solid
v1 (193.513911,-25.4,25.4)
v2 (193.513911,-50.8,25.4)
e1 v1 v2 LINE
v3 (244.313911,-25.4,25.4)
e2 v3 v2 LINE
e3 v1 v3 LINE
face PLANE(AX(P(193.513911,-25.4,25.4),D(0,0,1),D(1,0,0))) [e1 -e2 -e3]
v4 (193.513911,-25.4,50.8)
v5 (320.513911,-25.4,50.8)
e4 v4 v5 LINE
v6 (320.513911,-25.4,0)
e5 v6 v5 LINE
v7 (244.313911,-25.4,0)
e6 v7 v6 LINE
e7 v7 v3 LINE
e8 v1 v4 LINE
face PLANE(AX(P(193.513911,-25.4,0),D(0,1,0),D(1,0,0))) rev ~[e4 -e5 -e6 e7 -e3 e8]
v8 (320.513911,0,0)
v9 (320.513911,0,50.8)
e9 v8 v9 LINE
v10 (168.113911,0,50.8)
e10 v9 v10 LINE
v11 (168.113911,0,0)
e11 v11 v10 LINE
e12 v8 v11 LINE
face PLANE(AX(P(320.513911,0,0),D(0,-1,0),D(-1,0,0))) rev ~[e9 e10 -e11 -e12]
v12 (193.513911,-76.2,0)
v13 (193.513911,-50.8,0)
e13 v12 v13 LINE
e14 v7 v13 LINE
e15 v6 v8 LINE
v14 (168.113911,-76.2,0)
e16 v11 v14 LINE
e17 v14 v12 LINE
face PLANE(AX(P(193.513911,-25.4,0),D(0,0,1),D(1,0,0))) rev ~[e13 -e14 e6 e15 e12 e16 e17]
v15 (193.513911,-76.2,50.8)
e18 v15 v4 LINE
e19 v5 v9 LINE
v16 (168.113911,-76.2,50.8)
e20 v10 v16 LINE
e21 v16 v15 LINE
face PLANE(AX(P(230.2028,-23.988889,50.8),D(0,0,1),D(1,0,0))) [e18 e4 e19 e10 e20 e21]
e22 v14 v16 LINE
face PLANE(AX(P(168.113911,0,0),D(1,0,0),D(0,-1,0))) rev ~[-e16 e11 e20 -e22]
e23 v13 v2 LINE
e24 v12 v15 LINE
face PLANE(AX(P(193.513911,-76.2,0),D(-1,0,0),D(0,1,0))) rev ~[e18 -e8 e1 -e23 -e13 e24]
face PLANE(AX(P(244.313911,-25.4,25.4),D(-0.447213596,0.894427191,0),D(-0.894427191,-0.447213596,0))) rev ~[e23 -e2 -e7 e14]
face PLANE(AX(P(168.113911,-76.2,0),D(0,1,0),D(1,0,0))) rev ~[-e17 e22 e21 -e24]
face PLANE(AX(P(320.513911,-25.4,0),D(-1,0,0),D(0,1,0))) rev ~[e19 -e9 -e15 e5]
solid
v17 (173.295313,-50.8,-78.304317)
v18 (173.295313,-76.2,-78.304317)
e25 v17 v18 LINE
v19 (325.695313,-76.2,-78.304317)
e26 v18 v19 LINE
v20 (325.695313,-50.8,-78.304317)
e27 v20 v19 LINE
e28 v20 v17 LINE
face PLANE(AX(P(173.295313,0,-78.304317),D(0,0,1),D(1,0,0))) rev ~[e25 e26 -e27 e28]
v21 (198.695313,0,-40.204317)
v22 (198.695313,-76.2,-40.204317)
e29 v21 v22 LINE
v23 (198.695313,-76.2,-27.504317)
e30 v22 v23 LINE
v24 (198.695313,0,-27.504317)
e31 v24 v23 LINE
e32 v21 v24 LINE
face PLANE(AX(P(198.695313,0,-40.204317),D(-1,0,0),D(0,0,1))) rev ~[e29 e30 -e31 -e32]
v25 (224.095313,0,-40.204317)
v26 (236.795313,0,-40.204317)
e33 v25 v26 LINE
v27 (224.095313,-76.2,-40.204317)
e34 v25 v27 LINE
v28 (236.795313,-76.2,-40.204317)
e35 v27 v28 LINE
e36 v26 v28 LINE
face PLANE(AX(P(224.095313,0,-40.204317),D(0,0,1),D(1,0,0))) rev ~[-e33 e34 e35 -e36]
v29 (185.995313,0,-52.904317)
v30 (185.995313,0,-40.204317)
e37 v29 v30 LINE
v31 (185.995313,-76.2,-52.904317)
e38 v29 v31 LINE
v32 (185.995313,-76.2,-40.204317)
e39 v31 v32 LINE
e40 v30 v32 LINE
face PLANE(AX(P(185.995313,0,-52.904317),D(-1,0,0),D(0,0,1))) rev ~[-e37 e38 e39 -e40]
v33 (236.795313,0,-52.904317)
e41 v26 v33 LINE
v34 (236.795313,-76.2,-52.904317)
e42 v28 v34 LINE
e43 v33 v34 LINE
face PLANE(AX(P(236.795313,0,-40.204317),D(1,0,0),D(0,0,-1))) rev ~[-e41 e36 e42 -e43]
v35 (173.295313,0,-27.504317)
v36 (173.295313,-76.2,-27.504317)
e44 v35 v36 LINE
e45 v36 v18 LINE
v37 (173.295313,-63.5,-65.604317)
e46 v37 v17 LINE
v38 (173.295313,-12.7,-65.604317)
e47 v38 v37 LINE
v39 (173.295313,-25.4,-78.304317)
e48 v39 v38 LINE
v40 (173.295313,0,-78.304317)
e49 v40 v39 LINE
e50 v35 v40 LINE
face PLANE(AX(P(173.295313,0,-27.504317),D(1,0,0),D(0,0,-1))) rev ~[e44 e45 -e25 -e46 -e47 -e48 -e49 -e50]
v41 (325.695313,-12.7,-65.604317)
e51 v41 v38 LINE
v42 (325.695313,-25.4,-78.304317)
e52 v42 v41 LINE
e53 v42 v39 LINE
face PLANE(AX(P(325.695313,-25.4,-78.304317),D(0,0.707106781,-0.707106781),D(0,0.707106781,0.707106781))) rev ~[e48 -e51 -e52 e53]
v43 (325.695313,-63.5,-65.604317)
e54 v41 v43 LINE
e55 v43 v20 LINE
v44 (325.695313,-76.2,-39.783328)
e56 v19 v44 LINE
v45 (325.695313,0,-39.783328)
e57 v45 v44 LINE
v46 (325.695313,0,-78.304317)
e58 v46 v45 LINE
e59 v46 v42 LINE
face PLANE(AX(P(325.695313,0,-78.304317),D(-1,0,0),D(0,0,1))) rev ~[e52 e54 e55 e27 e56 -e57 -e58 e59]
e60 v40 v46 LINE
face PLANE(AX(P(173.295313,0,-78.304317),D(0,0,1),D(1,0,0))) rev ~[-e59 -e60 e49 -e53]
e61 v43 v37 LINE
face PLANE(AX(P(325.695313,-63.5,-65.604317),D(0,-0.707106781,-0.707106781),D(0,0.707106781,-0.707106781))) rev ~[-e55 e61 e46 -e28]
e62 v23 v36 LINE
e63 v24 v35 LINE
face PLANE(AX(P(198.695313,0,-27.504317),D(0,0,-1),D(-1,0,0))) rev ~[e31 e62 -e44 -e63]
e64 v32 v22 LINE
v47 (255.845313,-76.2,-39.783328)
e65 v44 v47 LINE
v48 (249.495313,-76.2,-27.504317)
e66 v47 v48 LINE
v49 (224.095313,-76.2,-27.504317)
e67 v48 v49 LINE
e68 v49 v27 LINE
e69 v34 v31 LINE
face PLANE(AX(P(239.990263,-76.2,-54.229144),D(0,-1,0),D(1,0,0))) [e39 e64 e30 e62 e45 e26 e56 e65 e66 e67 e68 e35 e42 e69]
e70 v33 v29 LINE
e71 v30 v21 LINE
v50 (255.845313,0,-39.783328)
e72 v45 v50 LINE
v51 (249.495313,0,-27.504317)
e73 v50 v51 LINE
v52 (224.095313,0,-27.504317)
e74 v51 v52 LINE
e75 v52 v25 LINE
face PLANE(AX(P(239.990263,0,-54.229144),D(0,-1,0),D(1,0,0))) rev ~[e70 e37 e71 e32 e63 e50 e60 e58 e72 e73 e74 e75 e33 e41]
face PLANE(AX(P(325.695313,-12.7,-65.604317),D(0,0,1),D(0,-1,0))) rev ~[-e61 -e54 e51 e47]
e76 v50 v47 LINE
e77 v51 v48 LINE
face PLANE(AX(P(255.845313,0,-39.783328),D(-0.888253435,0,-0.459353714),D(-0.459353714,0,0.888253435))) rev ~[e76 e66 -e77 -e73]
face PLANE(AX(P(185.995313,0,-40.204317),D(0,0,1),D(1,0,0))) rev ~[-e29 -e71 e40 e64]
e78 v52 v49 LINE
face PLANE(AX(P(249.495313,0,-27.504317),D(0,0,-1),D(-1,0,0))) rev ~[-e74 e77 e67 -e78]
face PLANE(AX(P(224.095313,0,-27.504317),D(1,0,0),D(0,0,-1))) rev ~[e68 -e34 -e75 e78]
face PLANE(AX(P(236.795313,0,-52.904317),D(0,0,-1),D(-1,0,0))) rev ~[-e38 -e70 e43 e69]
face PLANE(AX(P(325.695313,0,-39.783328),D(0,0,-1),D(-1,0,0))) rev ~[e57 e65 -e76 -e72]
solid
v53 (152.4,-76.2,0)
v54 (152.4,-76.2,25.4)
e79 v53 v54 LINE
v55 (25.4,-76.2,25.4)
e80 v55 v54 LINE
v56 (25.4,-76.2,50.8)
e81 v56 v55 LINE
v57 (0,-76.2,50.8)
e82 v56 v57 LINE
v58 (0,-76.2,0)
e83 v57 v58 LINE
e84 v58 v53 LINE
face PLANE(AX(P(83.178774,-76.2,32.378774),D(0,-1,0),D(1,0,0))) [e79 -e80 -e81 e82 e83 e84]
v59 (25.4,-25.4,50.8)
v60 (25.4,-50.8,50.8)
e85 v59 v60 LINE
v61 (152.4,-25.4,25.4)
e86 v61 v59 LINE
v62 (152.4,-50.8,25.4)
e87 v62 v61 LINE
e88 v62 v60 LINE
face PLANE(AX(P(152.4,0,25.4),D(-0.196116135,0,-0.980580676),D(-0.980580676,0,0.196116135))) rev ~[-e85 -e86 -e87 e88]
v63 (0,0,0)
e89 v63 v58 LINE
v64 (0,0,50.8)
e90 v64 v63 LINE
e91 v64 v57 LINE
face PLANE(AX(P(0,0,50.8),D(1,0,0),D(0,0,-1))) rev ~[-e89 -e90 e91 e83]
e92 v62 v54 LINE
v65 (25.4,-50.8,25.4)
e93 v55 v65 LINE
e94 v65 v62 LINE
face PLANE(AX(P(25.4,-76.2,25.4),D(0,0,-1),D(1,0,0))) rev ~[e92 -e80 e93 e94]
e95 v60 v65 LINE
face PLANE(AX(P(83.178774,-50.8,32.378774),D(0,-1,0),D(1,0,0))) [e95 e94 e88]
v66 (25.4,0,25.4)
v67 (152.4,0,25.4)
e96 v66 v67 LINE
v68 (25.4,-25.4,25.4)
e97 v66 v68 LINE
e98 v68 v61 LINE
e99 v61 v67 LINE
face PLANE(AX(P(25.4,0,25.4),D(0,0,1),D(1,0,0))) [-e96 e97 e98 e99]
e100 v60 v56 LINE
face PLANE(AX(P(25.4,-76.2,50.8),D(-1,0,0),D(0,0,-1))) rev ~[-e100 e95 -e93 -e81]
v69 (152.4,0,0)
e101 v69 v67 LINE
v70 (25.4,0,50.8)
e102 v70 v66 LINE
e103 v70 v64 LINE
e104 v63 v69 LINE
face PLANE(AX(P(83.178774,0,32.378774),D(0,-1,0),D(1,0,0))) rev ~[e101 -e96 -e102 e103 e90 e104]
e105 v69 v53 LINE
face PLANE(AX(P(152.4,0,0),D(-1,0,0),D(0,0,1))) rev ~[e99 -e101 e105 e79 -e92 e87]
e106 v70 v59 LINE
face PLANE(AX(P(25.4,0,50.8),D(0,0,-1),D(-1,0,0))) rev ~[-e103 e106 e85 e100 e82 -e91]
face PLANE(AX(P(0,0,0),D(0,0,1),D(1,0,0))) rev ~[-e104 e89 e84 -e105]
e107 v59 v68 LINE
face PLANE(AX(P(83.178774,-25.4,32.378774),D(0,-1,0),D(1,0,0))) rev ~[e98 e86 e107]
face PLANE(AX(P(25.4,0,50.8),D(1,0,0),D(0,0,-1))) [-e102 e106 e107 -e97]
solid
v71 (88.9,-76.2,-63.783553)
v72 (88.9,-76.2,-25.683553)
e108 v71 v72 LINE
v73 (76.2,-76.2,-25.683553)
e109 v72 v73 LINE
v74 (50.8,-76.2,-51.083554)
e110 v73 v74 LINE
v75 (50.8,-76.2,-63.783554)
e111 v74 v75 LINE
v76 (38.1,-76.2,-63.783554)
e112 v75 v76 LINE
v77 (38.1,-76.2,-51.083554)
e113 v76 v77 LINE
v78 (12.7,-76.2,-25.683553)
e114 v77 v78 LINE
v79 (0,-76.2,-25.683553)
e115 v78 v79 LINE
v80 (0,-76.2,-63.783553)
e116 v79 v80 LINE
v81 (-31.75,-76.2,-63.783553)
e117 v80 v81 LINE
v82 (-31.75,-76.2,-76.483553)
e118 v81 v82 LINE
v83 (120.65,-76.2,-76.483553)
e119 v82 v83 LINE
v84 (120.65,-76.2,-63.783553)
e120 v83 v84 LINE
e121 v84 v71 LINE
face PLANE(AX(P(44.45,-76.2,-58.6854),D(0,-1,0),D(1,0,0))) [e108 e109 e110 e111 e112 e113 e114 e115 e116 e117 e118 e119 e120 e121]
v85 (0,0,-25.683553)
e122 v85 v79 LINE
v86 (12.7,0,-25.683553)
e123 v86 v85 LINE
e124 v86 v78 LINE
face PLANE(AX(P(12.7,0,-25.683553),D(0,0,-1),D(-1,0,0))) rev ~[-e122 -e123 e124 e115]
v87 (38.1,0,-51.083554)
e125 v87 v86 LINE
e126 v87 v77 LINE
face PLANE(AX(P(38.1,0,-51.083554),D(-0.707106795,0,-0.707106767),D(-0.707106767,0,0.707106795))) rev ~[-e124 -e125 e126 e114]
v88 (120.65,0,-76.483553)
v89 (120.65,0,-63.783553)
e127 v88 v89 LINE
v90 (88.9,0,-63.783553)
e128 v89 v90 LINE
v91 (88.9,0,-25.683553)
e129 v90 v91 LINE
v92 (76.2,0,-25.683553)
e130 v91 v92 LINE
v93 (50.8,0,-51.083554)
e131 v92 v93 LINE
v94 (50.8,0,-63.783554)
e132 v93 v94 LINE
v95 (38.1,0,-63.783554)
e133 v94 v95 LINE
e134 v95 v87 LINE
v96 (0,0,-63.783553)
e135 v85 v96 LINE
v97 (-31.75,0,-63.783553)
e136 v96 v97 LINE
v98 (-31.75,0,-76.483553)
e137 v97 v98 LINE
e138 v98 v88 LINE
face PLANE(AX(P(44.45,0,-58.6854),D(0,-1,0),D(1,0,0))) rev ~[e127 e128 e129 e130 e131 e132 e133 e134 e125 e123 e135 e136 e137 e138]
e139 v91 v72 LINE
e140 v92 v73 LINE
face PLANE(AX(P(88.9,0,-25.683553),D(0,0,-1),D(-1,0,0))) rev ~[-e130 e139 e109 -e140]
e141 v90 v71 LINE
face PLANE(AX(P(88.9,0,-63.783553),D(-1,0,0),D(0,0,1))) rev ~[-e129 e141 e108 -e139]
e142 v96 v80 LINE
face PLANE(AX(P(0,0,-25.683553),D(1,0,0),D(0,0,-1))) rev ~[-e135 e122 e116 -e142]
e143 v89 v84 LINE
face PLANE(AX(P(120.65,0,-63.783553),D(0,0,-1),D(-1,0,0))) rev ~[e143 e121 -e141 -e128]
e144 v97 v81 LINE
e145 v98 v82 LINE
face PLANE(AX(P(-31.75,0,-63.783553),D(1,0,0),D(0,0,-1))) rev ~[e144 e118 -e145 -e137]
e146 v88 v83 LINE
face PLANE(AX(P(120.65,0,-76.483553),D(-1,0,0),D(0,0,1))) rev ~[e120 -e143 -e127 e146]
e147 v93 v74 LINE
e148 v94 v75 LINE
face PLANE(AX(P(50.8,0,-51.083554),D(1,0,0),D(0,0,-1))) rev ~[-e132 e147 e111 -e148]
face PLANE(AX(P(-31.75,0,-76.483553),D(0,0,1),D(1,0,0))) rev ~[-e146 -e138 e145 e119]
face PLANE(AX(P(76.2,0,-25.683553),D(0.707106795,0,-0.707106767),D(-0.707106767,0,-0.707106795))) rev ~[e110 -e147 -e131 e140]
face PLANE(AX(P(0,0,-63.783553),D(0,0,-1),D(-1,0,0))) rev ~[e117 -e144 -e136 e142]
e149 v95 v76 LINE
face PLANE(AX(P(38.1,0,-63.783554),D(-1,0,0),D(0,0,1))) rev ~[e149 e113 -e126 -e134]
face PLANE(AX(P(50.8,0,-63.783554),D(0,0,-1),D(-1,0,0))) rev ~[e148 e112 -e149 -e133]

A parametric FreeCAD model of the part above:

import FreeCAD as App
import Part
import Sketcher
from FreeCAD import Vector
Q = App.Units.Quantity


def add_polygon(sketch, points):
    """Adds a closed chain of lines whose ends are joined by coincident constraints."""
    first, n = sketch.GeometryCount, len(points)
    for a, b in zip(points, points[1:] + points[:1]):
        sketch.addGeometry(Part.LineSegment(App.Vector(*a, 0), App.Vector(*b, 0)), False)
    for i in range(n):
        sketch.addConstraint(Sketcher.Constraint("Coincident", first + i, 2, first + (i + 1) % n, 1))

doc = App.newDocument("Part")
body = doc.addObject("PartDesign::Body", "Body")

# Sketch on XZ plane
sketch1 = doc.addObject("Sketcher::SketchObject", "Sketch")
body.addObject(sketch1)
sketch1.AttachmentSupport = (doc.XZ_Plane, [""])
sketch1.MapMode = "FlatFace"
add_polygon(sketch1, [(0, 51), (0, 0), (152, 0), (152, 25), (25, 25), (25, 51)])  # lines 0-5
sketch1.addConstraint([
    Sketcher.Constraint("Vertical", 0),
    Sketcher.Constraint("Horizontal", 1),
    Sketcher.Constraint("Vertical", 2),
    Sketcher.Constraint("Horizontal", 3),
    Sketcher.Constraint("Vertical", 4),
    Sketcher.Constraint("Horizontal", 5),
    Sketcher.Constraint("Coincident", 0, 2, -1, 1),
    Sketcher.Constraint("Equal", 5, 2),
    Sketcher.Constraint("Equal", 2, 4),
    Sketcher.Constraint("DistanceX", 1, 1, 1, 2, Q("6 in")),
    Sketcher.Constraint("DistanceX", 3, 2, 3, 1, Q("5 in")),
])
pad1 = doc.addObject("PartDesign::Pad", "Pad")
body.addObject(pad1)
pad1.Profile = sketch1
pad1.Length = Q("3 in")

# Sketch on XZ plane
sketch2 = doc.addObject("Sketcher::SketchObject", "Sketch001")
body.addObject(sketch2)
sketch2.AttachmentSupport = (doc.XZ_Plane, [""])
sketch2.MapMode = "FlatFace"
add_polygon(sketch2, [(25, 25), (152, 25), (25, 51)])  # lines 0-2
sketch2.addConstraint([
    Sketcher.Constraint("Horizontal", 0),
    Sketcher.Constraint("Vertical", 2),
    Sketcher.Constraint("DistanceX", 0, 1, 0, 2, Q("5 in")),
    Sketcher.Constraint("DistanceY", 2, 2, 2, 1, Q("1 in")),
    Sketcher.Constraint("DistanceX", -1, 1, 0, 2, Q("6 in")),
    Sketcher.Constraint("DistanceY", -1, 1, 0, 2, Q("1 in")),
])
pad2 = doc.addObject("PartDesign::Pad", "Pad001")
body.addObject(pad2)
pad2.Profile = sketch2
pad2.Length = Q("3 in")

# Sketch on XZ plane
sketch3 = doc.addObject("Sketcher::SketchObject", "Sketch002")
body.addObject(sketch3)
sketch3.AttachmentSupport = (doc.XZ_Plane, [""])
sketch3.MapMode = "FlatFace"
sketch3.AttachmentOffset = App.Placement(Vector(0, 0, 3 * 25.4), App.Rotation())
add_polygon(sketch3, [(152, 25), (25, 51), (25, 25)])  # lines 0-2
sketch3.addConstraint([
    Sketcher.Constraint("Vertical", 1),
    Sketcher.Constraint("Horizontal", 2),
    Sketcher.Constraint("DistanceX", 2, 1, 2, 2, Q("5 in")),
    Sketcher.Constraint("DistanceY", 1, 2, 1, 1, Q("1 in")),
    Sketcher.Constraint("DistanceX", -1, 1, 0, 2, Q("1 in")),
    Sketcher.Constraint("DistanceY", -1, 1, 0, 2, Q("2 in")),
])
pocket1 = doc.addObject("PartDesign::Pocket", "Pocket")
body.addObject(pocket1)
pocket1.Profile = sketch3
pocket1.Length = Q("1 in")

# Sketch on XZ plane
sketch4 = doc.addObject("Sketcher::SketchObject", "Sketch003")
body.addObject(sketch4)
sketch4.AttachmentSupport = (doc.XZ_Plane, [""])
sketch4.MapMode = "FlatFace"
add_polygon(sketch4, [(25, 25), (152, 25), (25, 51)])  # lines 0-2
sketch4.addConstraint([
    Sketcher.Constraint("Horizontal", 0),
    Sketcher.Constraint("Vertical", 2),
    Sketcher.Constraint("DistanceX", 0, 1, 0, 2, Q("5 in")),
    Sketcher.Constraint("DistanceY", 2, 2, 2, 1, Q("1 in")),
    Sketcher.Constraint("DistanceX", -1, 1, 0, 2, Q("6 in")),
    Sketcher.Constraint("DistanceY", -1, 1, 0, 2, Q("1 in")),
])
pad3 = doc.addObject("PartDesign::Pad", "Pad002")
body.addObject(pad3)
pad3.Profile = sketch4
pad3.Length = Q("1 in")

# Sketch on XZ plane
sketch5 = doc.addObject("Sketcher::SketchObject", "Sketch004")
body.addObject(sketch5)
sketch5.AttachmentSupport = (doc.XZ_Plane, [""])
sketch5.MapMode = "FlatFace"
add_polygon(sketch5, [(25, 25), (152, 25), (25, 51)])  # lines 0-2
sketch5.addConstraint([
    Sketcher.Constraint("Horizontal", 0),
    Sketcher.Constraint("Vertical", 2),
    Sketcher.Constraint("DistanceX", 0, 1, 0, 2, Q("5 in")),
    Sketcher.Constraint("DistanceY", 2, 2, 2, 1, Q("1 in")),
    Sketcher.Constraint("DistanceX", -1, 1, 0, 2, Q("6 in")),
    Sketcher.Constraint("DistanceY", -1, 1, 0, 2, Q("1 in")),
])
pocket2 = doc.addObject("PartDesign::Pocket", "Pocket001")
body.addObject(pocket2)
pocket2.Profile = sketch5
pocket2.Length = Q("1 in")
pocket2.Reversed = True
body2 = doc.addObject("PartDesign::Body", "Body001")

# Sketch on XY plane
sketch6 = doc.addObject("Sketcher::SketchObject", "Sketch005")
body2.addObject(sketch6)
sketch6.AttachmentSupport = (doc.getObject("XY_Plane001"), [""])
sketch6.MapMode = "FlatFace"
add_polygon(sketch6, [(321, 0), (168, 0), (168, -76), (194, -76), (194, -25), (321, -25)])  # lines 0-5
sketch6.addConstraint([
    Sketcher.Constraint("Horizontal", 0),
    Sketcher.Constraint("Vertical", 1),
    Sketcher.Constraint("Horizontal", 2),
    Sketcher.Constraint("Vertical", 3),
    Sketcher.Constraint("Horizontal", 4),
    Sketcher.Constraint("Vertical", 5),
    Sketcher.Constraint("PointOnObject", 0, 2, -1),
    Sketcher.Constraint("Equal", 2, 5),
    Sketcher.Constraint("DistanceX", 0, 2, 0, 1, Q("6 in")),
    Sketcher.Constraint("DistanceX", 2, 1, 2, 2, Q("1 in")),
    Sketcher.Constraint("DistanceY", 1, 2, 1, 1, Q("3 in")),
    Sketcher.Constraint("DistanceX", -1, 1, 0, 2, Q("168.113911 mm")),
])
pad4 = doc.addObject("PartDesign::Pad", "Pad003")
body2.addObject(pad4)
pad4.Profile = sketch6
pad4.Length = Q("2 in")

# Sketch on XZ plane
sketch7 = doc.addObject("Sketcher::SketchObject", "Sketch006")
body2.addObject(sketch7)
sketch7.AttachmentSupport = (doc.getObject("XZ_Plane001"), [""])
sketch7.MapMode = "FlatFace"
sketch7.AttachmentOffset = App.Placement(Vector(0, 0, 1 * 25.4), App.Rotation())
add_polygon(sketch7, [(194, 25), (194, 0), (244, 0), (244, 25)])  # lines 0-3
sketch7.addConstraint([
    Sketcher.Constraint("Vertical", 0),
    Sketcher.Constraint("Horizontal", 1),
    Sketcher.Constraint("Vertical", 2),
    Sketcher.Constraint("Horizontal", 3),
    Sketcher.Constraint("PointOnObject", 0, 2, -1),
    Sketcher.Constraint("DistanceX", 1, 1, 1, 2, Q("2 in")),
    Sketcher.Constraint("DistanceY", 0, 2, 0, 1, Q("1 in")),
    Sketcher.Constraint("DistanceX", -1, 1, 0, 2, Q("193.513911 mm")),
])
pad5 = doc.addObject("PartDesign::Pad", "Pad004")
body2.addObject(pad5)
pad5.Profile = sketch7
pad5.Length = Q("1 in")

# Sketch on XY plane
sketch8 = doc.addObject("Sketcher::SketchObject", "Sketch007")
body2.addObject(sketch8)
sketch8.AttachmentSupport = (doc.getObject("XY_Plane001"), [""])
sketch8.MapMode = "FlatFace"
sketch8.AttachmentOffset = App.Placement(Vector(0, 0, 1 * 25.4), App.Rotation())
add_polygon(sketch8, [(244, -25), (194, -51), (244, -51)])  # lines 0-2
sketch8.addConstraint([
    Sketcher.Constraint("Horizontal", 1),
    Sketcher.Constraint("Vertical", 2),
    Sketcher.Constraint("DistanceX", 1, 1, 1, 2, Q("2 in")),
    Sketcher.Constraint("DistanceY", 2, 1, 2, 2, Q("1 in")),
    Sketcher.Constraint("DistanceY", 0, 2, -1, 1, Q("2 in")),
    Sketcher.Constraint("DistanceX", -1, 1, 0, 2, Q("193.513911 mm")),
])
pocket3 = doc.addObject("PartDesign::Pocket", "Pocket002")
body2.addObject(pocket3)
pocket3.Profile = sketch8
pocket3.Length = Q("1 in")
body3 = doc.addObject("PartDesign::Body", "Body002")

# Sketch on XZ plane
sketch9 = doc.addObject("Sketcher::SketchObject", "Sketch008")
body3.addObject(sketch9)
sketch9.AttachmentSupport = (doc.getObject("XZ_Plane002"), [""])
sketch9.MapMode = "FlatFace"
add_polygon(sketch9, [(-32, -76), (121, -76), (121, -64), (89, -64), (89, -26), (76, -26), (51, -51), (51, -64), (38, -64), (38, -51), (13, -26), (0, -26), (0, -64), (-32, -64)])  # lines 0-13
sketch9.addConstraint([
    Sketcher.Constraint("Horizontal", 0),
    Sketcher.Constraint("Vertical", 1),
    Sketcher.Constraint("Horizontal", 2),
    Sketcher.Constraint("Vertical", 3),
    Sketcher.Constraint("Horizontal", 4),
    Sketcher.Constraint("Vertical", 6),
    Sketcher.Constraint("Horizontal", 7),
    Sketcher.Constraint("Vertical", 8),
    Sketcher.Constraint("Horizontal", 10),
    Sketcher.Constraint("Vertical", 11),
    Sketcher.Constraint("Horizontal", 12),
    Sketcher.Constraint("Vertical", 13),
    Sketcher.Constraint("PointOnObject", 10, 2, -2),
    Sketcher.Constraint("Perpendicular", 5, 9),
    Sketcher.Constraint("Horizontal", 2, 2, 6, 2),
    Sketcher.Constraint("Horizontal", 5, 2, 8, 2),
    Sketcher.Constraint("Horizontal", 4, 2, 9, 2),
    Sketcher.Constraint("Horizontal", 7, 2, 11, 2),
    Sketcher.Constraint("Equal", 4, 7),
    Sketcher.Constraint("Equal", 7, 10),
    Sketcher.Constraint("Equal", 2, 12),
    Sketcher.Constraint("Equal", 10, 1),
    Sketcher.Constraint("Equal", 1, 6),
    Sketcher.Constraint("Equal", 5, 9),
    Sketcher.Constraint("DistanceX", 0, 1, 0, 2, Q("6 in")),
    Sketcher.Constraint("DistanceX", 4, 2, 4, 1, Q("0.5 in")),
    Sketcher.Constraint("DistanceY", 3, 1, 3, 2, Q("1.5 in")),
    Sketcher.Constraint("DistanceY", 0, 2, -1, 1, Q("76.483553 mm")),
])
pad6 = doc.addObject("PartDesign::Pad", "Pad005")
body3.addObject(pad6)
pad6.Profile = sketch9
pad6.Length = Q("3 in")
body4 = doc.addObject("PartDesign::Body", "Body003")

# Sketch on XZ plane
sketch10 = doc.addObject("Sketcher::SketchObject", "Sketch009")
body4.addObject(sketch10)
sketch10.AttachmentSupport = (doc.getObject("XZ_Plane003"), [""])
sketch10.MapMode = "FlatFace"
add_polygon(sketch10, [(173, -28), (173, -78), (326, -78), (326, -40), (256, -40), (249, -28), (224, -28), (224, -40), (237, -40), (237, -53), (186, -53), (186, -40), (199, -40), (199, -28)])  # lines 0-13
sketch10.addConstraint([
    Sketcher.Constraint("Vertical", 0),
    Sketcher.Constraint("Horizontal", 1),
    Sketcher.Constraint("Vertical", 2),
    Sketcher.Constraint("Horizontal", 3),
    Sketcher.Constraint("Horizontal", 5),
    Sketcher.Constraint("Vertical", 6),
    Sketcher.Constraint("Horizontal", 7),
    Sketcher.Constraint("Vertical", 8),
    Sketcher.Constraint("Horizontal", 9),
    Sketcher.Constraint("Vertical", 10),
    Sketcher.Constraint("Horizontal", 11),
    Sketcher.Constraint("Vertical", 12),
    Sketcher.Constraint("Horizontal", 13),
    Sketcher.Constraint("Horizontal", 7, 2, 10, 2),
    Sketcher.Constraint("Horizontal", 5, 2, 12, 2),
    Sketcher.Constraint("Equal", 7, 11),
    Sketcher.Constraint("Equal", 5, 13),
    Sketcher.Constraint("Equal", 9, 0),
    Sketcher.Constraint("Equal", 11, 6),
    Sketcher.Constraint("Equal", 6, 8),
    Sketcher.Constraint("DistanceX", 1, 1, 1, 2, Q("6 in")),
    Sketcher.Constraint("DistanceX", 5, 2, 5, 1, Q("1 in")),
    Sketcher.Constraint("DistanceX", 9, 2, 9, 1, Q("2 in")),
    Sketcher.Constraint("DistanceX", 7, 1, 7, 2, Q("0.5 in")),
    Sketcher.Constraint("DistanceX", 3, 2, 3, 1, Q("2.75 in")),
    Sketcher.Constraint("DistanceY", 2, 1, 2, 2, Q("38.520989 mm")),
    Sketcher.Constraint("DistanceX", -1, 1, 0, 2, Q("173.295313 mm")),
    Sketcher.Constraint("DistanceY", 0, 2, -1, 1, Q("78.304317 mm")),
])
pad7 = doc.addObject("PartDesign::Pad", "Pad006")
body4.addObject(pad7)
pad7.Profile = sketch10
pad7.Length = Q("3 in")

# Sketch on YZ plane
sketch11 = doc.addObject("Sketcher::SketchObject", "Sketch010")
body4.addObject(sketch11)
sketch11.AttachmentSupport = (doc.getObject("YZ_Plane003"), [""])
sketch11.MapMode = "FlatFace"
sketch11.AttachmentOffset = App.Placement(Vector(0, 0, 325.695313), App.Rotation())
add_polygon(sketch11, [(-64, -66), (-51, -78), (-25, -78), (-13, -66)])  # lines 0-3
sketch11.addConstraint([
    Sketcher.Constraint("Horizontal", 1),
    Sketcher.Constraint("Horizontal", 3),
    Sketcher.Constraint("Perpendicular", 0, 2),
    Sketcher.Constraint("Equal", 0, 2),
    Sketcher.Constraint("DistanceX", 1, 1, 1, 2, Q("1 in")),
    Sketcher.Constraint("DistanceX", 3, 2, 3, 1, Q("2 in")),
    Sketcher.Constraint("DistanceX", 0, 2, -1, 1, Q("2 in")),
    Sketcher.Constraint("DistanceY", 0, 2, -1, 1, Q("78.304317 mm")),
])
pocket4 = doc.addObject("PartDesign::Pocket", "Pocket003")
body4.addObject(pocket4)
pocket4.Profile = sketch11
pocket4.Length = Q("6 in")

doc.recompute()
